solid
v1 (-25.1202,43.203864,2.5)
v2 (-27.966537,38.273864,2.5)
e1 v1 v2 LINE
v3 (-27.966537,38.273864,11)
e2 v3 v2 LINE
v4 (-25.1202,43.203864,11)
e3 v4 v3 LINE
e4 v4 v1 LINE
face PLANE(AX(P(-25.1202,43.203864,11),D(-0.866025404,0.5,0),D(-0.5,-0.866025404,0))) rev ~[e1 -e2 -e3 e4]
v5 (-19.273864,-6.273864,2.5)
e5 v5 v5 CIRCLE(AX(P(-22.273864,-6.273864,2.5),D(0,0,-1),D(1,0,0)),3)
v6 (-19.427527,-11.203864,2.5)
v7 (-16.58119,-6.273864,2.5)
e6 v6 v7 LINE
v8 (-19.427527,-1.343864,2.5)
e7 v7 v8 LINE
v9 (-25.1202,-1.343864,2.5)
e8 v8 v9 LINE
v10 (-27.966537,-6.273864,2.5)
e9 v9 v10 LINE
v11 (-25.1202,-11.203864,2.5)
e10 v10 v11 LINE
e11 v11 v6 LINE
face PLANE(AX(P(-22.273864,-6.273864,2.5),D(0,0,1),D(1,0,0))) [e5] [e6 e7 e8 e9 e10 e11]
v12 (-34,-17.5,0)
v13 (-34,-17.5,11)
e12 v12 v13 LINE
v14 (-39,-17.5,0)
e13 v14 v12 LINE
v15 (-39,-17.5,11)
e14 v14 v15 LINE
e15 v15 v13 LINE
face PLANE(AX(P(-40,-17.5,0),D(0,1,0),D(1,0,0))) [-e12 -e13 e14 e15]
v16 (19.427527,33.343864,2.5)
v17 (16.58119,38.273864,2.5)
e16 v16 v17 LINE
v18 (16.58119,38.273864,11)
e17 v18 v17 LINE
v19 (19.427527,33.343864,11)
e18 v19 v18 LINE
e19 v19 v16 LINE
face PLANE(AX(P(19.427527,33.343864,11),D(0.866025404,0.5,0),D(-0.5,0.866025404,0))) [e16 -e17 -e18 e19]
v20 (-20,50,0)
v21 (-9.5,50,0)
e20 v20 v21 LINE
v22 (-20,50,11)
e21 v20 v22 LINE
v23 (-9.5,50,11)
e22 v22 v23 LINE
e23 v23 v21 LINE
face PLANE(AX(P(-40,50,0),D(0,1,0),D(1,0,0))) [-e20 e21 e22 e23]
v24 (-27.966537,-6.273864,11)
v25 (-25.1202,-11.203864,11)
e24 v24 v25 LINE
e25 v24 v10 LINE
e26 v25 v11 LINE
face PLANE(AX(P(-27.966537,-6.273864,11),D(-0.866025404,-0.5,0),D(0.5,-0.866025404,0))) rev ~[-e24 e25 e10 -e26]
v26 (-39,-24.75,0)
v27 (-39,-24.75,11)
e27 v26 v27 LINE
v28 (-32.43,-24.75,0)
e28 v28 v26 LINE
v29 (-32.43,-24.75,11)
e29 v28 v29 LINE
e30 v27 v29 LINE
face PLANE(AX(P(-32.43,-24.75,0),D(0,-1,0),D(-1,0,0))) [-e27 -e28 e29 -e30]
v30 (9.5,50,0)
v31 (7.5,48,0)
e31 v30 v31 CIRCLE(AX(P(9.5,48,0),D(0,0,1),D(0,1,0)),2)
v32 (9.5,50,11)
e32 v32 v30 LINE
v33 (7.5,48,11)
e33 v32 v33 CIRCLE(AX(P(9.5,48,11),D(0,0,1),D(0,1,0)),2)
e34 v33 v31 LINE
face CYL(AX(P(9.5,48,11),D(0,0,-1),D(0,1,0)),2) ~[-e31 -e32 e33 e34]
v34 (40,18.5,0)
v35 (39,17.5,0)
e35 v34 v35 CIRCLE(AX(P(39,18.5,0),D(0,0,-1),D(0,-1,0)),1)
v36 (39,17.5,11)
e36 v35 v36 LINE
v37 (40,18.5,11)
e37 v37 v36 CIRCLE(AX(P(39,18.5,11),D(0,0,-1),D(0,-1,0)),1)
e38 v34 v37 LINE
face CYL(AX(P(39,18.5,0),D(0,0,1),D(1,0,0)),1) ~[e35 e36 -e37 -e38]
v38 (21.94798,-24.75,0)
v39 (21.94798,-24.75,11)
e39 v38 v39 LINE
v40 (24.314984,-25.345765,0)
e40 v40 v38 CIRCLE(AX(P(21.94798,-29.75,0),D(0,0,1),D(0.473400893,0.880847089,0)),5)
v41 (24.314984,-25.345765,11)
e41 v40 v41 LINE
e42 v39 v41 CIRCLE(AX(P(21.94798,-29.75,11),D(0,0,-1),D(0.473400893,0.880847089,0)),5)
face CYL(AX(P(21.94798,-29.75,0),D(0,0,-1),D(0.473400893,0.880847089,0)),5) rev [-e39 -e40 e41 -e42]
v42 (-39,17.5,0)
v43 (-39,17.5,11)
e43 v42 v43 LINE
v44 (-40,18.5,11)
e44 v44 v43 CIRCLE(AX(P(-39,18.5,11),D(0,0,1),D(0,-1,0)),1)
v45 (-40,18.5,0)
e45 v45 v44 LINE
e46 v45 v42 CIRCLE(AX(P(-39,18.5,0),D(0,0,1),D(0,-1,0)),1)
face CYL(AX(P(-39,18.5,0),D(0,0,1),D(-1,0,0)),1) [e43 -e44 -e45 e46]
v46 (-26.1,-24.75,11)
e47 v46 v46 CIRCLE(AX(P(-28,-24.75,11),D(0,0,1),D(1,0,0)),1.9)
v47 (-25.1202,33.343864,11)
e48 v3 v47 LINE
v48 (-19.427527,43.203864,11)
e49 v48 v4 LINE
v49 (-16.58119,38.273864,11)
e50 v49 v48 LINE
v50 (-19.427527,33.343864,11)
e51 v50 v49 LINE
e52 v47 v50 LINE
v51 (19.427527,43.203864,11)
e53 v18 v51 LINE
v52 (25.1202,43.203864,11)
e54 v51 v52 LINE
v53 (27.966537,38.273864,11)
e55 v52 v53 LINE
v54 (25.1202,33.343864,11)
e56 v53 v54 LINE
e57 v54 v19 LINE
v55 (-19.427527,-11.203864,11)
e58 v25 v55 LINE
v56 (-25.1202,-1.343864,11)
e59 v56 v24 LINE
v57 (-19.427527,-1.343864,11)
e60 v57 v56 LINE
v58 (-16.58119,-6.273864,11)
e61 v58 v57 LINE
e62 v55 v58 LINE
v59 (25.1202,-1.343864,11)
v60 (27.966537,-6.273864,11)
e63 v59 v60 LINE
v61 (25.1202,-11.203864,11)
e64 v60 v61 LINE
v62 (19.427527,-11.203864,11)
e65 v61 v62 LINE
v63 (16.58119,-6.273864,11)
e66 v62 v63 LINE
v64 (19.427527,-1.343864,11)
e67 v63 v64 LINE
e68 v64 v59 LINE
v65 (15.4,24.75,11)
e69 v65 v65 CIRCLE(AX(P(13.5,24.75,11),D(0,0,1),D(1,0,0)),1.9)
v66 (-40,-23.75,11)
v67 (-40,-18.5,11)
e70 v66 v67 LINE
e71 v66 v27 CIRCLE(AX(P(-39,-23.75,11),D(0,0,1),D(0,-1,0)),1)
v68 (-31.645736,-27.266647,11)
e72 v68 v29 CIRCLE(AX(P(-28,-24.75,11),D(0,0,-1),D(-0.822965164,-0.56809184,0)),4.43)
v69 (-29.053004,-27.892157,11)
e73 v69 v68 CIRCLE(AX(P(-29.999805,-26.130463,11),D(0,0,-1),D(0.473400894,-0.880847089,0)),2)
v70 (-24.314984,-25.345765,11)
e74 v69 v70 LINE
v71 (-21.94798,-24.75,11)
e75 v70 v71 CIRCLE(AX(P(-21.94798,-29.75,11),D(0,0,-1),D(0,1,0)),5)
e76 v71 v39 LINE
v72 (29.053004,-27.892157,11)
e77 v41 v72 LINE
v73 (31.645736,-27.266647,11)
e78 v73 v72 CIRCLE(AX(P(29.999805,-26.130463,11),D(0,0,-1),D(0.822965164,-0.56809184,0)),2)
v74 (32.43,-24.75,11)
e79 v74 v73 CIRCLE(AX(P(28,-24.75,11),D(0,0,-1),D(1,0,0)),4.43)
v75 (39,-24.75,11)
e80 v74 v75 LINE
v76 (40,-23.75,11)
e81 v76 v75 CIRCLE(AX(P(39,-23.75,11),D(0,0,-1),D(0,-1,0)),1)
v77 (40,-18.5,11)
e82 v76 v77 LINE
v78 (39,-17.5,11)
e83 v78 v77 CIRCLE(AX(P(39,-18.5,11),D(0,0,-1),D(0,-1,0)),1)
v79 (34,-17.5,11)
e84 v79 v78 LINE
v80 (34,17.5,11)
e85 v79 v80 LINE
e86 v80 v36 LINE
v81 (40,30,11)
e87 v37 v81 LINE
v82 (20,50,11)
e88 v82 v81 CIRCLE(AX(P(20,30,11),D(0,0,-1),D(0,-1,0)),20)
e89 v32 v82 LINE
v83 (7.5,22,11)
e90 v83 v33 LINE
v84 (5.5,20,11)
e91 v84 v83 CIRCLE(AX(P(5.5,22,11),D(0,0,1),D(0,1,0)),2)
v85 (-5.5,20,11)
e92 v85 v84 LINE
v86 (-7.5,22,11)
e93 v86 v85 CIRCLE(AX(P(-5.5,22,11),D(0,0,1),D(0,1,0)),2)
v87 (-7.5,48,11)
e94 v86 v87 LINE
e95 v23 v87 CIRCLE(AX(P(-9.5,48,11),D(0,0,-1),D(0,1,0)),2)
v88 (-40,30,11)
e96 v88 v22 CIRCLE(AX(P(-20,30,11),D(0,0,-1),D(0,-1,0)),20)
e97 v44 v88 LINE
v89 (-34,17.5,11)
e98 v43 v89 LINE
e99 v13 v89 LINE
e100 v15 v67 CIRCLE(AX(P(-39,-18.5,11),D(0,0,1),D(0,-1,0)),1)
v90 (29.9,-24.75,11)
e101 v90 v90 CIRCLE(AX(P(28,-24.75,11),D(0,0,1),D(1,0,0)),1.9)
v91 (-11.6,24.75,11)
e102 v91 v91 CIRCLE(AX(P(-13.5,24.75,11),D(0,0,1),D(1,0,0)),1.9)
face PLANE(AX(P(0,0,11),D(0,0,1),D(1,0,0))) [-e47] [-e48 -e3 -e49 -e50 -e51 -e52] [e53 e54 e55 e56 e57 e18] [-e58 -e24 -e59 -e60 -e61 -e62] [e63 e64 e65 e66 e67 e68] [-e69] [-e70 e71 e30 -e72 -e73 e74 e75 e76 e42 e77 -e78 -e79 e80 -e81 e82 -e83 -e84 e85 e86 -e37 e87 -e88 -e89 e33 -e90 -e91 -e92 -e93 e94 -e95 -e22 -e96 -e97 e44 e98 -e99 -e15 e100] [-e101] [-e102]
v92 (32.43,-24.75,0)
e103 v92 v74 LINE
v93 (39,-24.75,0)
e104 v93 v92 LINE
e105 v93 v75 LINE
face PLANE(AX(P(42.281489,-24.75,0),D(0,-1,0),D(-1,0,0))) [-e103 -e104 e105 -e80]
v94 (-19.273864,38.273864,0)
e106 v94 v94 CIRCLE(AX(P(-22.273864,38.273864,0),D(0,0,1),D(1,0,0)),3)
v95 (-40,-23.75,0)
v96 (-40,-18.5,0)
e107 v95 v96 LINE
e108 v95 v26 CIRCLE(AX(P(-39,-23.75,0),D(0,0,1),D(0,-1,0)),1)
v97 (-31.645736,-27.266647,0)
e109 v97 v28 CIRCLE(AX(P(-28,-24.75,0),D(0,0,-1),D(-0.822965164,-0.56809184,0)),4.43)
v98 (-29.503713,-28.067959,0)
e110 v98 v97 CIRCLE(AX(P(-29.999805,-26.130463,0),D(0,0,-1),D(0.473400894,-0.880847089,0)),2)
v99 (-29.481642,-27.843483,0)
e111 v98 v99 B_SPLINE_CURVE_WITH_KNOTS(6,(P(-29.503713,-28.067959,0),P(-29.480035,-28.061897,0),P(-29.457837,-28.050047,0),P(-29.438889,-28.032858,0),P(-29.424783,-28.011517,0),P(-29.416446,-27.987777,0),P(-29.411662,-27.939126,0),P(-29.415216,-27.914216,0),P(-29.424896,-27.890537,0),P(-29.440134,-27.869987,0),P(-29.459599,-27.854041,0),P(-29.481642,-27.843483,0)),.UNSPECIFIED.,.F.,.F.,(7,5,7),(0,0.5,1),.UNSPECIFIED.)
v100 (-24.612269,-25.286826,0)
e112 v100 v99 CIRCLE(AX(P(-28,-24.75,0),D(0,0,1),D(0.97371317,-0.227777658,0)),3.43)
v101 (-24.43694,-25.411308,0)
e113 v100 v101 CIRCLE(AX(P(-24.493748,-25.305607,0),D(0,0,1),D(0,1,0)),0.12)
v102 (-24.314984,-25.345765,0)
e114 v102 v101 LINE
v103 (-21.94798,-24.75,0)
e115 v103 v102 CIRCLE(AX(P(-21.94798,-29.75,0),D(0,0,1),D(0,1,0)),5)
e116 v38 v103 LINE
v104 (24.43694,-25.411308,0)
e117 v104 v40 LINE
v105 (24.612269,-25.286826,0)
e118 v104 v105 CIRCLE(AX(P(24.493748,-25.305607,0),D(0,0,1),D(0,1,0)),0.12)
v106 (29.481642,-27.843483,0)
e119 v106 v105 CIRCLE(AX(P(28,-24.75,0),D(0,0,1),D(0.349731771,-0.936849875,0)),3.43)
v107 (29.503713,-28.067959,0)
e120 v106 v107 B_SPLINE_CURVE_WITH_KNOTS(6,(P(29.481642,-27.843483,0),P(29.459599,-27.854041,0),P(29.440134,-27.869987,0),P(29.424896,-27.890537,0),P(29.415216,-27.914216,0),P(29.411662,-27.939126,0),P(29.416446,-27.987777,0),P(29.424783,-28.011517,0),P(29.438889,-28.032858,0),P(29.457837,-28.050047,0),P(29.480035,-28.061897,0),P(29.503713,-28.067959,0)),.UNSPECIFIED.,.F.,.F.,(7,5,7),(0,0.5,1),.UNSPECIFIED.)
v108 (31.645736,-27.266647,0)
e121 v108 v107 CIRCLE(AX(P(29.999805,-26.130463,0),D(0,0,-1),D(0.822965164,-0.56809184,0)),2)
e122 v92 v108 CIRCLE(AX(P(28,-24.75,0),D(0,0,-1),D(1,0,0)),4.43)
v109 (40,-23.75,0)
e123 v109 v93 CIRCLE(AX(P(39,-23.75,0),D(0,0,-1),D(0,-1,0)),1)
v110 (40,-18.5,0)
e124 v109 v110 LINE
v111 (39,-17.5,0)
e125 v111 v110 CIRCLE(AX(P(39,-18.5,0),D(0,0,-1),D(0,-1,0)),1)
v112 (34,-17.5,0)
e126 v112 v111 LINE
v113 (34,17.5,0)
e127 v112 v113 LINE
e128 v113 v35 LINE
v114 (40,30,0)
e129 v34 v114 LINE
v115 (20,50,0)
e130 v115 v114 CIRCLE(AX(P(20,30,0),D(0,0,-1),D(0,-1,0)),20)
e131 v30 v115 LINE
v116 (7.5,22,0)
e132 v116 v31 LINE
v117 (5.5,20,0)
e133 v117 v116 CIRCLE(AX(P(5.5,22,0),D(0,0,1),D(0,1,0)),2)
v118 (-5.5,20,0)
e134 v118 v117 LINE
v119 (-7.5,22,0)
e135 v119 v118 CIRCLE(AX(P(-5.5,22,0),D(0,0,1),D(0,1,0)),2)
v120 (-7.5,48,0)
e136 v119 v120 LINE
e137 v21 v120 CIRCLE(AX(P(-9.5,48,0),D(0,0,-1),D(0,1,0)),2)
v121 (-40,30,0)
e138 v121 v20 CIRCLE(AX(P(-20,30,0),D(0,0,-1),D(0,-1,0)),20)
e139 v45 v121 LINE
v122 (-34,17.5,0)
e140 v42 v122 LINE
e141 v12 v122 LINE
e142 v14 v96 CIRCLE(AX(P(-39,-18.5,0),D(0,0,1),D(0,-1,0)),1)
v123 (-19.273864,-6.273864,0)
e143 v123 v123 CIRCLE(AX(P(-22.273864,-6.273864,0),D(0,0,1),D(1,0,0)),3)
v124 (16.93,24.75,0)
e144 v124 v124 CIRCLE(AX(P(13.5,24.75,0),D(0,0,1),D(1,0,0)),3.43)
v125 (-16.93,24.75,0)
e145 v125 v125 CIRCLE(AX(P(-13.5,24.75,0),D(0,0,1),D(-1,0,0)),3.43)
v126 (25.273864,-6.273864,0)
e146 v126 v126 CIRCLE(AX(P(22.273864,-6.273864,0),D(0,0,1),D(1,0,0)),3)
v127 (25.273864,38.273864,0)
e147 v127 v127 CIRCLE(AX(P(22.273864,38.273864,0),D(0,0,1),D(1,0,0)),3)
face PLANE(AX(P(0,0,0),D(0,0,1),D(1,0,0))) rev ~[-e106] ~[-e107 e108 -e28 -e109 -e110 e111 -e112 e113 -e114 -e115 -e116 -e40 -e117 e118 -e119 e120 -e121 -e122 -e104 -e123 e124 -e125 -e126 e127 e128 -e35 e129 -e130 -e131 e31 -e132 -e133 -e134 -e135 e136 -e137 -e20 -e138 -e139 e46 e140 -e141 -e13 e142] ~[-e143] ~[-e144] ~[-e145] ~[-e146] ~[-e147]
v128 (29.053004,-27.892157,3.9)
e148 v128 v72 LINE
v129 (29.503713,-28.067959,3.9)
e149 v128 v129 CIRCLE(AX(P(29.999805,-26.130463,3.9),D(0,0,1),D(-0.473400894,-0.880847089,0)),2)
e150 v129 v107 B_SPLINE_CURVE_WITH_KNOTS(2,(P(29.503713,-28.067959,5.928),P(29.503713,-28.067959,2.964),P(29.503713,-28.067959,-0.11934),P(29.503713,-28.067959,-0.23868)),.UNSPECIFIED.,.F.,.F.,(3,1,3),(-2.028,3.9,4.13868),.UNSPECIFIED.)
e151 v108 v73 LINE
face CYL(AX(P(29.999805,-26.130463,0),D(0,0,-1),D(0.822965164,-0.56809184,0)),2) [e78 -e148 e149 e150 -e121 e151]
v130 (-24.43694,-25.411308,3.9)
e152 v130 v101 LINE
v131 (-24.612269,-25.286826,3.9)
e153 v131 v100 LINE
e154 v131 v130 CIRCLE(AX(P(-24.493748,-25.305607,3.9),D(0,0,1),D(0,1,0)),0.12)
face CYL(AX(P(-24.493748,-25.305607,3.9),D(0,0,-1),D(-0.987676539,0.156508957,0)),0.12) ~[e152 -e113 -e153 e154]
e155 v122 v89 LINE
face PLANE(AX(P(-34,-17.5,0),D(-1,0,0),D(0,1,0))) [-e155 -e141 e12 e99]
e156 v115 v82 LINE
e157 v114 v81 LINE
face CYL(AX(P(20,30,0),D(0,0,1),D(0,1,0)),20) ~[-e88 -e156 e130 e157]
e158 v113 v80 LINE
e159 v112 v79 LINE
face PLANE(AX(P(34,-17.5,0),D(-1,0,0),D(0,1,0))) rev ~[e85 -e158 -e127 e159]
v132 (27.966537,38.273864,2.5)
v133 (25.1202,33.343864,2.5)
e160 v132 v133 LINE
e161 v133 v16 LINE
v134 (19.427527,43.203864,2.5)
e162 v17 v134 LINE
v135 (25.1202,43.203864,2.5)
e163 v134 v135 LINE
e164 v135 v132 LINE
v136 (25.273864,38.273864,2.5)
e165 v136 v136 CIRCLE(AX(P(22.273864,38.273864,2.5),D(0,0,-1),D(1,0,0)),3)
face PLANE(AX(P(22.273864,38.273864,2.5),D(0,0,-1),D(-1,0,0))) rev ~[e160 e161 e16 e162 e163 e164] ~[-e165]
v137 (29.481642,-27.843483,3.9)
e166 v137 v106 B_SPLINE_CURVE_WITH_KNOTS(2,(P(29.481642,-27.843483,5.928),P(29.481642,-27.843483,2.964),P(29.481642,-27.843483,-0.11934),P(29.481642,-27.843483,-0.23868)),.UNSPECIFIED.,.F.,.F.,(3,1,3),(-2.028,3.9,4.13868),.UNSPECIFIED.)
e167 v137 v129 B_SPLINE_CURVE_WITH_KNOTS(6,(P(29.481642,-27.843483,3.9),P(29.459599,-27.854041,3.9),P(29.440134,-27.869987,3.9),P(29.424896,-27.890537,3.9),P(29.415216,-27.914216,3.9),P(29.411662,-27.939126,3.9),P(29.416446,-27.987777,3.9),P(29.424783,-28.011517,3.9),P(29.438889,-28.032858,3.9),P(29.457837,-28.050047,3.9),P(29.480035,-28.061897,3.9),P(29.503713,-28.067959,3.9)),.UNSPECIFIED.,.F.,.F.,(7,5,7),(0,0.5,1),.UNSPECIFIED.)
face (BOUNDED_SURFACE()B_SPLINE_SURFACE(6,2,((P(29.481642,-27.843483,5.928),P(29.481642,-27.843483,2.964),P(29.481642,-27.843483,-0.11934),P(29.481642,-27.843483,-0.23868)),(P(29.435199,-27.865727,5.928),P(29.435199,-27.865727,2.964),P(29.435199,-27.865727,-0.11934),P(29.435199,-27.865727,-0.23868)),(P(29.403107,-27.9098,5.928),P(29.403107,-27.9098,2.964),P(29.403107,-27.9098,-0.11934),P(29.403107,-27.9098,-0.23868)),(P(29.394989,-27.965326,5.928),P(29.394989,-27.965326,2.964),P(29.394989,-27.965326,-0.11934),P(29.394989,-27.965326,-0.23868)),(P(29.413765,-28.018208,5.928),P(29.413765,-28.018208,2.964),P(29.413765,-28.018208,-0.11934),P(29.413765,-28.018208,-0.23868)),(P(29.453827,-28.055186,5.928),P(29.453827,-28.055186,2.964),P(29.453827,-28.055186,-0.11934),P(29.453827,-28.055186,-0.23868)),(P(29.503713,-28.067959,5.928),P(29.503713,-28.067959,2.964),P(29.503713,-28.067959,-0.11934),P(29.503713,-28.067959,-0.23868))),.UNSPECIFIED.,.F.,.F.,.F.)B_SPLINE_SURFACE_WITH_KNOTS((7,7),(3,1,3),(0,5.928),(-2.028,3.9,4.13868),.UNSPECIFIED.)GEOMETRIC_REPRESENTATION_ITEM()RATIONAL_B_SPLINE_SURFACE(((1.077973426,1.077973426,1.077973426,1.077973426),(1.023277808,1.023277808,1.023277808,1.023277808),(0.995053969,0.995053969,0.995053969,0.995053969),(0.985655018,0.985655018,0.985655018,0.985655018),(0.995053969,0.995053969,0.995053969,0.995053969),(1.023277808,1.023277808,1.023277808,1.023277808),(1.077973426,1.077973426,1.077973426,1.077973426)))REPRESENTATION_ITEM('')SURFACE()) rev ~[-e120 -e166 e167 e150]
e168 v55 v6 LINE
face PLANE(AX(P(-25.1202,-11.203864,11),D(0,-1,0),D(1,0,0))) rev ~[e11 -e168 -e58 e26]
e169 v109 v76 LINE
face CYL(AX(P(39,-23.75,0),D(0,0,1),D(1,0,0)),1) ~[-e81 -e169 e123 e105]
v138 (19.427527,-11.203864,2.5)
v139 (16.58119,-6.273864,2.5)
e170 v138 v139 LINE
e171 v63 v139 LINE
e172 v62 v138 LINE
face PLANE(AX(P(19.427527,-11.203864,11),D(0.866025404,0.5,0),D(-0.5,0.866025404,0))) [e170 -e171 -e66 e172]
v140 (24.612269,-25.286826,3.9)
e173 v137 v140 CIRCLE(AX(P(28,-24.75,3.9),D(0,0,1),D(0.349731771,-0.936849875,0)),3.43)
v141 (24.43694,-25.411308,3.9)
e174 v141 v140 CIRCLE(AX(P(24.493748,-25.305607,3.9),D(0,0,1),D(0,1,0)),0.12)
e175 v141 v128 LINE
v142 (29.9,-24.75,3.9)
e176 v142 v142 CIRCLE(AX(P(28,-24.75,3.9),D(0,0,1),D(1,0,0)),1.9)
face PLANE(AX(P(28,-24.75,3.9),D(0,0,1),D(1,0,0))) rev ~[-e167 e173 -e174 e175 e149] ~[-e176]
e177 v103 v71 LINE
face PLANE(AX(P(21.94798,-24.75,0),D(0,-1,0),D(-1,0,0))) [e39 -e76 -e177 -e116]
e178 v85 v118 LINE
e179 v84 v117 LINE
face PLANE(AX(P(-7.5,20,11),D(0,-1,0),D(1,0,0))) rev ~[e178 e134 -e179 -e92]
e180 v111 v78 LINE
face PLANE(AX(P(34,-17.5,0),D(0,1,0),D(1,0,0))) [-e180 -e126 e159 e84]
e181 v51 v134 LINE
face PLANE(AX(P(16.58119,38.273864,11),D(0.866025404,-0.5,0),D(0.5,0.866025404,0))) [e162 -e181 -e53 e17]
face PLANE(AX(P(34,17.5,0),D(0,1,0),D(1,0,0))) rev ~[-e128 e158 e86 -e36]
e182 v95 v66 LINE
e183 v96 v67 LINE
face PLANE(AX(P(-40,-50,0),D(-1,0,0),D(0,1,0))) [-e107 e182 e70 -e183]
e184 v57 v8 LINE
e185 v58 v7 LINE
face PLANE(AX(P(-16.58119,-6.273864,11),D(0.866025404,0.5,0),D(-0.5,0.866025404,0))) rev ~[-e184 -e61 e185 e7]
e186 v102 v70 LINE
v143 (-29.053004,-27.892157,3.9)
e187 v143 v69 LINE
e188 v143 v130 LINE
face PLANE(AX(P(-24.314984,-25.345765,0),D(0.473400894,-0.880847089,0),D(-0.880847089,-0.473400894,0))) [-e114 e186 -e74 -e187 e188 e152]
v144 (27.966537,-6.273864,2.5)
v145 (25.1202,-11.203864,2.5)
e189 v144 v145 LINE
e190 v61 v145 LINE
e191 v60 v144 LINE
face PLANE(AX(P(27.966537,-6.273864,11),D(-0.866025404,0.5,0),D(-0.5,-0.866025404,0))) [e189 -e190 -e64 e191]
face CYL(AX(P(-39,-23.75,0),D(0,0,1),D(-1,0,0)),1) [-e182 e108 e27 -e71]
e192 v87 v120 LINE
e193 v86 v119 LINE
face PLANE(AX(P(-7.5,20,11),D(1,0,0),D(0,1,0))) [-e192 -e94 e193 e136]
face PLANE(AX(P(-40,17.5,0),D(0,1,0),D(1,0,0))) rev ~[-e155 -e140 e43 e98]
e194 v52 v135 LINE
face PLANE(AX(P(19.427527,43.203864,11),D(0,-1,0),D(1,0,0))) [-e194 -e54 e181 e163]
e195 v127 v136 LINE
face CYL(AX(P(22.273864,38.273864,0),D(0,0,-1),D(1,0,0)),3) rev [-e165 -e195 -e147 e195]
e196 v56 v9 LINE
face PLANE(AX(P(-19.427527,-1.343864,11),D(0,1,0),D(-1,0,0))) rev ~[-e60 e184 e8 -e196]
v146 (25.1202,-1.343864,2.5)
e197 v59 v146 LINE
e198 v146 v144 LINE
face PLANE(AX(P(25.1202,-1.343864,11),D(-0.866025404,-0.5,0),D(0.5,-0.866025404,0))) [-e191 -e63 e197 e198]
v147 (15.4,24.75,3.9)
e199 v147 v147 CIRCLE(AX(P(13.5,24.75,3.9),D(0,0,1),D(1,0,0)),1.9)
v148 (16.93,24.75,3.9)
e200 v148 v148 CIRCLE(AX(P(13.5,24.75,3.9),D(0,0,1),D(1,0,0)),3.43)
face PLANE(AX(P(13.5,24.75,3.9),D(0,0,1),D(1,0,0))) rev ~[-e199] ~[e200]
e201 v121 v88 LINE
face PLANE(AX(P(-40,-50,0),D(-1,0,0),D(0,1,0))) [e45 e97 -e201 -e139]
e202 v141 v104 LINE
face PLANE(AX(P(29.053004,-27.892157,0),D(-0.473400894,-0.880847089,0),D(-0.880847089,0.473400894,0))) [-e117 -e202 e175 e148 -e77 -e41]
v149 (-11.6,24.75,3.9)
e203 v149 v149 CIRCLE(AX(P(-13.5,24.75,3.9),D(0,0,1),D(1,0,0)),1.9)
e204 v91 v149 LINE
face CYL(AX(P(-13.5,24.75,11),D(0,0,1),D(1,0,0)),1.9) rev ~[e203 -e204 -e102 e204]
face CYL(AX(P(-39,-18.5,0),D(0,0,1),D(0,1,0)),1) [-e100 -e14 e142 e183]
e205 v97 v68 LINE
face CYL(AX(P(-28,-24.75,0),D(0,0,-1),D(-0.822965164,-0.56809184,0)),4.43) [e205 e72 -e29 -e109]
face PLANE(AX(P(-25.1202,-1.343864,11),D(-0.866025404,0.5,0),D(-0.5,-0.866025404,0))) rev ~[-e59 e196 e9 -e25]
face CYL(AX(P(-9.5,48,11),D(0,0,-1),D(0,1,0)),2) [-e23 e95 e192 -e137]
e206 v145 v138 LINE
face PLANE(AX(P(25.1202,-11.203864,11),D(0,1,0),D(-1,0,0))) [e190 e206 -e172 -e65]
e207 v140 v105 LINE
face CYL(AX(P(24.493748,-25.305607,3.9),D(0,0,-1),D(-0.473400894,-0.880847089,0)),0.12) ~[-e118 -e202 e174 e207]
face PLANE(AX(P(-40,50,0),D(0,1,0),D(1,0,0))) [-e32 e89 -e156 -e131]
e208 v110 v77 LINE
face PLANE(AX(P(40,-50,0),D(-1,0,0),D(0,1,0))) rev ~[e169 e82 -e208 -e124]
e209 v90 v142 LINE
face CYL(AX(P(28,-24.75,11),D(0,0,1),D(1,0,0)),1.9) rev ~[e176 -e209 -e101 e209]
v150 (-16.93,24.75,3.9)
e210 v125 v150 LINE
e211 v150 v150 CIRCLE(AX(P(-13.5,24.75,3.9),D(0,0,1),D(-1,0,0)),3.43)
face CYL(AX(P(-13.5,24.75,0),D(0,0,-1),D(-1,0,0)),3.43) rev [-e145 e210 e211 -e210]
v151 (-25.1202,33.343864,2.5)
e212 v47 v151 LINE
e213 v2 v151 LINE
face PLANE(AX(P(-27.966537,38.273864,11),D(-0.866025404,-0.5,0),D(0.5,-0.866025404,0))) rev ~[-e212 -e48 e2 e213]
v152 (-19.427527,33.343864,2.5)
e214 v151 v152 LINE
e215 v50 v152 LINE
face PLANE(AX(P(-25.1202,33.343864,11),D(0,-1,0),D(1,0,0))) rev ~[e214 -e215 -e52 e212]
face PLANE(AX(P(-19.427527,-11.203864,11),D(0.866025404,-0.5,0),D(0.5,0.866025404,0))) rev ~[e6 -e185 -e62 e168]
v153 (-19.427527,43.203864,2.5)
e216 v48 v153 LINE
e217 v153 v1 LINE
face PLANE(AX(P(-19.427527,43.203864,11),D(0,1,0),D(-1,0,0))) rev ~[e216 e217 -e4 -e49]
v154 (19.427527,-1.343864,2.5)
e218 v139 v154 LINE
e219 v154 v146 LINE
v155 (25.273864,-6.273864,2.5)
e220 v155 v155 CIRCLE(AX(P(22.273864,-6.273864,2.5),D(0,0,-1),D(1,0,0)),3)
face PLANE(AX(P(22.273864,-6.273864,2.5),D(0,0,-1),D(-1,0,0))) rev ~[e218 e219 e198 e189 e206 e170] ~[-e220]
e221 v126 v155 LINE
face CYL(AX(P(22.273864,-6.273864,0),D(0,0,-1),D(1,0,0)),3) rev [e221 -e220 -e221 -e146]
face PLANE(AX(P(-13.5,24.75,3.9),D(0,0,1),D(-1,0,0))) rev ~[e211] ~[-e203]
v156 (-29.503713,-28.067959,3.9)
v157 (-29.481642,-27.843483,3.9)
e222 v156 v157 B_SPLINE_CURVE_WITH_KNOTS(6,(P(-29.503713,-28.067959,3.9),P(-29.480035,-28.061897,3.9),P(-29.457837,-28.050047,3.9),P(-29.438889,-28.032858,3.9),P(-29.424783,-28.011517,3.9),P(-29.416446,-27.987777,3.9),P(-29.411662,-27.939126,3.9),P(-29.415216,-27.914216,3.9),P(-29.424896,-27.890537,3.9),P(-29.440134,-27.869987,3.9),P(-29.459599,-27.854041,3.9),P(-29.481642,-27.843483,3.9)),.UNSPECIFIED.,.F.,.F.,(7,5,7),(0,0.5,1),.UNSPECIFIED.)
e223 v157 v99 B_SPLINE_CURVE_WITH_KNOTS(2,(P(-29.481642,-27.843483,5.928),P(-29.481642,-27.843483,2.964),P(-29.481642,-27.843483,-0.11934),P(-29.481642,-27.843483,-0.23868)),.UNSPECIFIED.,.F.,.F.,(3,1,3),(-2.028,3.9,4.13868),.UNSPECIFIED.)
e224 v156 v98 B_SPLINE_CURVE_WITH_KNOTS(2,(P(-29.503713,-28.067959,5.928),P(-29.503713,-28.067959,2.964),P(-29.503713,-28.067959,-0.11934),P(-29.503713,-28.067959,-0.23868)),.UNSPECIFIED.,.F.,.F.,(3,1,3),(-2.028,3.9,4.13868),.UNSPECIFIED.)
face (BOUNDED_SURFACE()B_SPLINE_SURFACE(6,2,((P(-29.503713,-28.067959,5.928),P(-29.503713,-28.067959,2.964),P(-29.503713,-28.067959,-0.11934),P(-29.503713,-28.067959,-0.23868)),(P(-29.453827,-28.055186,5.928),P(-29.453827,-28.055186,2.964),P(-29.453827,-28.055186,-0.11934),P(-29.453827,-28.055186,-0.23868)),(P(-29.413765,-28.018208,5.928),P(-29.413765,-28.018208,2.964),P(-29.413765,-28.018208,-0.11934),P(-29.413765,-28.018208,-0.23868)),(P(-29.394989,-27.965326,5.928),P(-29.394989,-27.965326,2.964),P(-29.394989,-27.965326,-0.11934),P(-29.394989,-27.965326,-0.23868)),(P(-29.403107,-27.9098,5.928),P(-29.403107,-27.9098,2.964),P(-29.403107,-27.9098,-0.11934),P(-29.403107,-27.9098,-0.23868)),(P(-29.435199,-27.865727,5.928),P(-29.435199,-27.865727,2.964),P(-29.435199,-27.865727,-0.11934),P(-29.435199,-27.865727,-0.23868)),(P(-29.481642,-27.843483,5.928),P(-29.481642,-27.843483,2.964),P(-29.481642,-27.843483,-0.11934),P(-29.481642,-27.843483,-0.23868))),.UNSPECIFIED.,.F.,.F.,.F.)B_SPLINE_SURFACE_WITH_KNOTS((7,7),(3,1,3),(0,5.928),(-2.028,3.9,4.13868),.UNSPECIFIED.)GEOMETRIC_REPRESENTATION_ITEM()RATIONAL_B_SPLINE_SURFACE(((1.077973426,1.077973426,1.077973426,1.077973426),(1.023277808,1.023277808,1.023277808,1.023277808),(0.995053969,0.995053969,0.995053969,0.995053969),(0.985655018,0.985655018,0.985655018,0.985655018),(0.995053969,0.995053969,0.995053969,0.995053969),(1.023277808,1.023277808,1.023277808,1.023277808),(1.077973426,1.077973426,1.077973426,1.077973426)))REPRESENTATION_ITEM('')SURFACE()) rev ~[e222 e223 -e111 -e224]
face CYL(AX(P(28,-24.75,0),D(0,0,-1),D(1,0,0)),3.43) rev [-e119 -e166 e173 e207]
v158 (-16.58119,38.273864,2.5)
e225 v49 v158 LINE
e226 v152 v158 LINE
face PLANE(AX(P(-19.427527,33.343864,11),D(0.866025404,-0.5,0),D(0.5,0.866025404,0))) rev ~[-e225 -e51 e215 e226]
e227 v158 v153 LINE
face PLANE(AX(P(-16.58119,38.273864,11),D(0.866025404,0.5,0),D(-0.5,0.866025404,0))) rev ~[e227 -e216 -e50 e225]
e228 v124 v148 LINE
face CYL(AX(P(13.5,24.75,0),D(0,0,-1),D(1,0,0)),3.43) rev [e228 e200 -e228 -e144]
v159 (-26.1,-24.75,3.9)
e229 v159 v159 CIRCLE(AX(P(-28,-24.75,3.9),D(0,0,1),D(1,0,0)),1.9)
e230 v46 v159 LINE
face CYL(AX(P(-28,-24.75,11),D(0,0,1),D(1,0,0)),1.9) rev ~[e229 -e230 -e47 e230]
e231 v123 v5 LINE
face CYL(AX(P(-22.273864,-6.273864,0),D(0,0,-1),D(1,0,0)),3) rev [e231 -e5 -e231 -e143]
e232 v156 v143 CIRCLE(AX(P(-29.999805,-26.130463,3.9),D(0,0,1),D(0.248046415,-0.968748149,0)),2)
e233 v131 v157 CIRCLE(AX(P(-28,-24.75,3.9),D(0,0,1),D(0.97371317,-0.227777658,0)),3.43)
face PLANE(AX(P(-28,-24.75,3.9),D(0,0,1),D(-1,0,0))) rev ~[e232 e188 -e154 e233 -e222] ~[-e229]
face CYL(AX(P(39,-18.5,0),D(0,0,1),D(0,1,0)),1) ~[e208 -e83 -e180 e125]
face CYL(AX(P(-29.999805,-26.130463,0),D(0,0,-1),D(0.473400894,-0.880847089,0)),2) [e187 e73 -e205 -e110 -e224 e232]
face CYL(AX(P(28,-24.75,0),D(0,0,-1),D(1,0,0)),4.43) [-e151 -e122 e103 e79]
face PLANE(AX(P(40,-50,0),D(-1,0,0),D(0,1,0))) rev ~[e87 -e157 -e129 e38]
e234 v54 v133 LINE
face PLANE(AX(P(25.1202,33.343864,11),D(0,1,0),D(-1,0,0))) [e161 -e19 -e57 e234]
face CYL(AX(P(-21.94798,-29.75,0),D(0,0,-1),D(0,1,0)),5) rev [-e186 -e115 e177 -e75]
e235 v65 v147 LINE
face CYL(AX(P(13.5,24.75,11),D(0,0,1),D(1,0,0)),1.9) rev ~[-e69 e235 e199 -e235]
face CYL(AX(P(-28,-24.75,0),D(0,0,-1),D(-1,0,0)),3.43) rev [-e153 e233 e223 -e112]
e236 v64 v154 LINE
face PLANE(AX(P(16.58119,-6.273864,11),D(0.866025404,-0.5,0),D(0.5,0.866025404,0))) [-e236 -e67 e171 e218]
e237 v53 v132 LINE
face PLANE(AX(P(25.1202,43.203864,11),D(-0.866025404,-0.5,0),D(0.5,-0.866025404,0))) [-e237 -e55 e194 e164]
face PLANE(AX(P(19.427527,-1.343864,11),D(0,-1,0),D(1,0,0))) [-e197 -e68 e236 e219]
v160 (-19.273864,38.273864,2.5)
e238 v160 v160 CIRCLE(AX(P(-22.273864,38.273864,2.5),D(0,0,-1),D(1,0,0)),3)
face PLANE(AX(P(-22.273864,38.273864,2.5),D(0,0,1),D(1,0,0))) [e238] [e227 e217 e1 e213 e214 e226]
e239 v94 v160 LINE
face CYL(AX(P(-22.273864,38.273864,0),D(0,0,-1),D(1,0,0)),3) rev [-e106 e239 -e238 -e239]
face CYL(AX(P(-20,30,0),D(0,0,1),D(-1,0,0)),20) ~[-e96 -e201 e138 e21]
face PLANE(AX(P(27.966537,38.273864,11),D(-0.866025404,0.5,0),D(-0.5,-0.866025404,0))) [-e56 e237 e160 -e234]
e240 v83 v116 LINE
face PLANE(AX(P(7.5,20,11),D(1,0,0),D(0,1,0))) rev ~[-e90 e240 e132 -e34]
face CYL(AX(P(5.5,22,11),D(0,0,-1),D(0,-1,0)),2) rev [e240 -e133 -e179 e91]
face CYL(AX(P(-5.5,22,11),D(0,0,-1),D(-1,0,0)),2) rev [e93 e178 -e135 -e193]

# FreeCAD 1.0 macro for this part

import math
import FreeCAD as App
import Part
import Sketcher

V = App.Vector
Q = App.Units.Quantity


def edges_at(feature, points):
    """Names of the edges that pass closest to the given points."""
    edges = feature.Shape.Edges
    near = lambda p: min(range(len(edges)), key=lambda i: edges[i].distToShape(Part.Vertex(*p))[0])
    return sorted({f"Edge{near(p) + 1}" for p in points})

doc = App.newDocument("Part")
body = doc.addObject("PartDesign::Body", "Body")

sketch1 = doc.addObject("Sketcher::SketchObject", "Sketch")
body.addObject(sketch1)
sketch1.AttachmentSupport = (doc.XY_Plane, [""])
sketch1.MapMode = "FlatFace"
sketch1.addGeometry(Part.LineSegment(V(-40, 50, 0), V(-40, -50, 0)), False)
sketch1.addGeometry(Part.LineSegment(V(-40, -50, 0), V(40, -50, 0)), False)
sketch1.addGeometry(Part.LineSegment(V(40, -50, 0), V(40, 50, 0)), False)
sketch1.addGeometry(Part.LineSegment(V(40, 50, 0), V(-40, 50, 0)), False)
sketch1.addConstraint(Sketcher.Constraint("Coincident", 0, 2, 1, 1))
sketch1.addConstraint(Sketcher.Constraint("Coincident", 1, 2, 2, 1))
sketch1.addConstraint(Sketcher.Constraint("Coincident", 2, 2, 3, 1))
sketch1.addConstraint(Sketcher.Constraint("Coincident", 3, 2, 0, 1))
sketch1.addConstraint(Sketcher.Constraint("Vertical", 0))
sketch1.addConstraint(Sketcher.Constraint("Horizontal", 1))
sketch1.addConstraint(Sketcher.Constraint("Vertical", 2))
sketch1.addConstraint(Sketcher.Constraint("Horizontal", 3))
sketch1.addConstraint(Sketcher.Constraint("Symmetric", 0, 2, 2, 2, -1, 1))
sketch1.addConstraint(Sketcher.Constraint("DistanceX", 1, 1, 1, 2, Q("80 mm")))
sketch1.addConstraint(Sketcher.Constraint("DistanceY", 0, 2, 0, 1, Q("100 mm")))
pad1 = doc.addObject("PartDesign::Pad", "Pad")
body.addObject(pad1)
pad1.Profile = sketch1
pad1.Length = 11

sketch2 = doc.addObject("Sketcher::SketchObject", "Sketch001")
body.addObject(sketch2)
sketch2.AttachmentSupport = (doc.XY_Plane, [""])
sketch2.MapMode = "FlatFace"
sketch2.AttachmentOffset = App.Placement(V(0, 0, 11), App.Rotation())
sketch2.addGeometry(Part.LineSegment(V(-7.5, 50, 0), V(-7.5, 20, 0)), False)
sketch2.addGeometry(Part.LineSegment(V(-7.5, 20, 0), V(7.5, 20, 0)), False)
sketch2.addGeometry(Part.LineSegment(V(7.5, 20, 0), V(7.5, 50, 0)), False)
sketch2.addGeometry(Part.LineSegment(V(7.5, 50, 0), V(-7.5, 50, 0)), False)
sketch2.addConstraint(Sketcher.Constraint("Coincident", 0, 2, 1, 1))
sketch2.addConstraint(Sketcher.Constraint("Coincident", 1, 2, 2, 1))
sketch2.addConstraint(Sketcher.Constraint("Coincident", 2, 2, 3, 1))
sketch2.addConstraint(Sketcher.Constraint("Coincident", 3, 2, 0, 1))
sketch2.addConstraint(Sketcher.Constraint("Vertical", 0))
sketch2.addConstraint(Sketcher.Constraint("Horizontal", 1))
sketch2.addConstraint(Sketcher.Constraint("Vertical", 2))
sketch2.addConstraint(Sketcher.Constraint("Horizontal", 3))
sketch2.addConstraint(Sketcher.Constraint("DistanceX", 1, 1, 1, 2, Q("15 mm")))
sketch2.addConstraint(Sketcher.Constraint("DistanceY", 0, 2, 0, 1, Q("30 mm")))
sketch2.addConstraint(Sketcher.Constraint("DistanceY", -1, 1, 0, 2, Q("20 mm")))
sketch2.addConstraint(Sketcher.Constraint("DistanceX", 0, 2, -1, 1, Q("7.5 mm")))
pocket1 = doc.addObject("PartDesign::Pocket", "Pocket")
body.addObject(pocket1)
pocket1.Profile = sketch2
pocket1.Length = 16

sketch3 = doc.addObject("Sketcher::SketchObject", "Sketch002")
body.addObject(sketch3)
sketch3.AttachmentSupport = (doc.XY_Plane, [""])
sketch3.MapMode = "FlatFace"
sketch3.addGeometry(Part.Circle(V(13.5, 24.75, 0), V(0, 0, 1), 1.65), False)
sketch3.addGeometry(Part.Circle(V(-13.5, 24.75, 0), V(0, 0, 1), 1.65), False)
sketch3.addGeometry(Part.Circle(V(-28, -24.75, 0), V(0, 0, 1), 1.65), False)
sketch3.addGeometry(Part.Circle(V(28, -24.75, 0), V(0, 0, 1), 1.65), False)
sketch3.addConstraint(Sketcher.Constraint("Equal", 0, 1))
sketch3.addConstraint(Sketcher.Constraint("Equal", 1, 2))
sketch3.addConstraint(Sketcher.Constraint("Equal", 2, 3))
sketch3.addConstraint(Sketcher.Constraint("Symmetric", 0, 3, 1, 3, -2))
sketch3.addConstraint(Sketcher.Constraint("Symmetric", 2, 3, 3, 3, -2))
sketch3.addConstraint(Sketcher.Constraint("Diameter", 0, Q("3.3 mm")))
sketch3.addConstraint(Sketcher.Constraint("DistanceX", 2, 3, -1, 1, Q("28 mm")))
sketch3.addConstraint(Sketcher.Constraint("DistanceX", 1, 3, 0, 3, Q("27 mm")))
sketch3.addConstraint(Sketcher.Constraint("DistanceY", 2, 3, 1, 3, Q("49.5 mm")))
sketch3.addConstraint(Sketcher.Constraint("DistanceY", -1, 1, 0, 3, Q("24.75 mm")))
doc.recompute()
hole = doc.addObject("PartDesign::Hole", "Hole")
body.addObject(hole)
hole.Profile = sketch3
hole.ThreadType = "None"
hole.Diameter = 3.3
hole.DepthType = "ThroughAll"
hole.HoleCutType = "Countersink"
hole.HoleCutDiameter = 4.05
hole.HoleCutCountersinkAngle = 90
hole.Reversed = True
doc.recompute()

fillet = doc.addObject("PartDesign::Fillet", "Fillet")
body.addObject(fillet)
fillet.Base = (hole, edges_at(hole, [(-40, 50, 5.5), (40, 50, 5.5)]))
fillet.Radius = 20
doc.recompute()

fillet2 = doc.addObject("PartDesign::Fillet", "Fillet001")
body.addObject(fillet2)
fillet2.Base = (fillet, edges_at(fillet, [
    (-7.5, 20, 5.5),
    (-7.5, 50, 5.5),
    (7.5, 50, 5.5),
    (7.5, 20, 5.5),
    (40, -50, 5.5),
    (-40, -50, 5.5),
]))
fillet2.Radius = 2

sketch4 = doc.addObject("Sketcher::SketchObject", "Sketch003")
body.addObject(sketch4)
sketch4.AttachmentSupport = (doc.XY_Plane, [""])
sketch4.MapMode = "FlatFace"
sketch4.addGeometry(Part.LineSegment(V(34, 17.5, 0), V(34, -17.5, 0)), False)
sketch4.addGeometry(Part.LineSegment(V(34, -17.5, 0), V(40, -17.5, 0)), False)
sketch4.addGeometry(Part.LineSegment(V(40, -17.5, 0), V(40, 17.5, 0)), False)
sketch4.addGeometry(Part.LineSegment(V(40, 17.5, 0), V(34, 17.5, 0)), False)
sketch4.addGeometry(Part.LineSegment(V(-40, 17.5, 0), V(-40, -17.5, 0)), False)
sketch4.addGeometry(Part.LineSegment(V(-40, -17.5, 0), V(-34, -17.5, 0)), False)
sketch4.addGeometry(Part.LineSegment(V(-34, -17.5, 0), V(-34, 17.5, 0)), False)
sketch4.addGeometry(Part.LineSegment(V(-34, 17.5, 0), V(-40, 17.5, 0)), False)
sketch4.addConstraint(Sketcher.Constraint("Coincident", 0, 2, 1, 1))
sketch4.addConstraint(Sketcher.Constraint("Coincident", 1, 2, 2, 1))
sketch4.addConstraint(Sketcher.Constraint("Coincident", 2, 2, 3, 1))
sketch4.addConstraint(Sketcher.Constraint("Coincident", 3, 2, 0, 1))
sketch4.addConstraint(Sketcher.Constraint("Coincident", 4, 2, 5, 1))
sketch4.addConstraint(Sketcher.Constraint("Coincident", 5, 2, 6, 1))
sketch4.addConstraint(Sketcher.Constraint("Coincident", 6, 2, 7, 1))
sketch4.addConstraint(Sketcher.Constraint("Coincident", 7, 2, 4, 1))
sketch4.addConstraint(Sketcher.Constraint("Vertical", 0))
sketch4.addConstraint(Sketcher.Constraint("Horizontal", 1))
sketch4.addConstraint(Sketcher.Constraint("Vertical", 2))
sketch4.addConstraint(Sketcher.Constraint("Horizontal", 3))
sketch4.addConstraint(Sketcher.Constraint("Vertical", 4))
sketch4.addConstraint(Sketcher.Constraint("Horizontal", 5))
sketch4.addConstraint(Sketcher.Constraint("Vertical", 6))
sketch4.addConstraint(Sketcher.Constraint("Horizontal", 7))
sketch4.addConstraint(Sketcher.Constraint("Symmetric", 2, 2, 4, 2, -1, 1))
sketch4.addConstraint(Sketcher.Constraint("Symmetric", 0, 2, 6, 2, -1, 1))
sketch4.addConstraint(Sketcher.Constraint("Horizontal", 1, 2, 4, 2))
sketch4.addConstraint(Sketcher.Constraint("DistanceX", 1, 1, 1, 2, Q("6 mm")))
sketch4.addConstraint(Sketcher.Constraint("DistanceY", 0, 2, 0, 1, Q("35 mm")))
sketch4.addConstraint(Sketcher.Constraint("DistanceX", -1, 1, 0, 2, Q("34 mm")))
pocket2 = doc.addObject("PartDesign::Pocket", "Pocket001")
body.addObject(pocket2)
pocket2.Profile = sketch4
pocket2.Length = 11
pocket2.Reversed = True

sketch5 = doc.addObject("Sketcher::SketchObject", "Sketch004")
body.addObject(sketch5)
sketch5.AttachmentSupport = (doc.XY_Plane, [""])
sketch5.MapMode = "FlatFace"
sketch5.addGeometry(Part.Circle(V(-22.273864, 38.273864, 0), V(0, 0, 1), 3), False)
sketch5.addGeometry(Part.Circle(V(22.273864, 38.273864, 0), V(0, 0, 1), 3), False)
sketch5.addGeometry(Part.Circle(V(22.273864, -6.273864, 0), V(0, 0, 1), 3), False)
sketch5.addGeometry(Part.Circle(V(-22.273864, -6.273864, 0), V(0, 0, 1), 3), False)
sketch5.addConstraint(Sketcher.Constraint("Equal", 0, 1))
sketch5.addConstraint(Sketcher.Constraint("Equal", 1, 2))
sketch5.addConstraint(Sketcher.Constraint("Equal", 2, 3))
sketch5.addConstraint(Sketcher.Constraint("Symmetric", 0, 3, 1, 3, -2))
sketch5.addConstraint(Sketcher.Constraint("Symmetric", 2, 3, 3, 3, -2))
sketch5.addConstraint(Sketcher.Constraint("Vertical", 1, 3, 2, 3))
sketch5.addConstraint(Sketcher.Constraint("Diameter", 0, Q("6 mm")))
sketch5.addConstraint(Sketcher.Constraint("DistanceX", 0, 3, -1, 1, Q("22.273864 mm")))
sketch5.addConstraint(Sketcher.Constraint("DistanceY", -1, 1, 0, 3, Q("38.273864 mm")))
sketch5.addConstraint(Sketcher.Constraint("DistanceY", 2, 3, -1, 1, Q("6.273864 mm")))
pocket3 = doc.addObject("PartDesign::Pocket", "Pocket002")
body.addObject(pocket3)
pocket3.Profile = sketch5
pocket3.Length = 15
pocket3.Reversed = True

sketch6 = doc.addObject("Sketcher::SketchObject", "Sketch005")
body.addObject(sketch6)
sketch6.AttachmentSupport = (doc.XY_Plane, [""])
sketch6.MapMode = "FlatFace"
sketch6.addGeometry(Part.Circle(V(13.5, 24.75, 0), V(0, 0, 1), 3.43), False)
sketch6.addGeometry(Part.Circle(V(28, -24.75, 0), V(0, 0, 1), 3.43), False)
sketch6.addGeometry(Part.Circle(V(-28, -24.75, 0), V(0, 0, 1), 3.43), False)
sketch6.addGeometry(Part.Circle(V(-13.5, 24.75, 0), V(0, 0, 1), 3.43), False)
sketch6.addConstraint(Sketcher.Constraint("Equal", 0, 1))
sketch6.addConstraint(Sketcher.Constraint("Equal", 1, 2))
sketch6.addConstraint(Sketcher.Constraint("Equal", 2, 3))
sketch6.addConstraint(Sketcher.Constraint("Symmetric", 1, 3, 2, 3, -2))
sketch6.addConstraint(Sketcher.Constraint("Symmetric", 0, 3, 3, 3, -2))
sketch6.addConstraint(Sketcher.Constraint("Diameter", 0, Q("6.86 mm")))
sketch6.addConstraint(Sketcher.Constraint("DistanceX", -1, 1, 1, 3, Q("28 mm")))
sketch6.addConstraint(Sketcher.Constraint("DistanceX", 3, 3, 0, 3, Q("27 mm")))
sketch6.addConstraint(Sketcher.Constraint("DistanceY", 1, 3, 0, 3, Q("49.5 mm")))
sketch6.addConstraint(Sketcher.Constraint("DistanceY", -1, 1, 0, 3, Q("24.75 mm")))
pocket4 = doc.addObject("PartDesign::Pocket", "Pocket003")
body.addObject(pocket4)
pocket4.Profile = sketch6
pocket4.Length = 3.9
pocket4.Reversed = True

sketch7 = doc.addObject("Sketcher::SketchObject", "Sketch006")
body.addObject(sketch7)
sketch7.AttachmentSupport = (doc.XY_Plane, [""])
sketch7.MapMode = "FlatFace"
sketch7.AttachmentOffset = App.Placement(V(0, 0, 11), App.Rotation())
sketch7.addGeometry(Part.LineSegment(V(-19.427527, 33.343864, 0), V(-16.58119, 38.273864, 0)), False)
sketch7.addGeometry(Part.LineSegment(V(-16.58119, 38.273864, 0), V(-19.427527, 43.203864, 0)), False)
sketch7.addGeometry(Part.LineSegment(V(-19.427527, 43.203864, 0), V(-25.1202, 43.203864, 0)), False)
sketch7.addGeometry(Part.LineSegment(V(-25.1202, 43.203864, 0), V(-27.966537, 38.273864, 0)), False)
sketch7.addGeometry(Part.LineSegment(V(-27.966537, 38.273864, 0), V(-25.1202, 33.343864, 0)), False)
sketch7.addGeometry(Part.LineSegment(V(-25.1202, 33.343864, 0), V(-19.427527, 33.343864, 0)), False)
sketch7.addGeometry(Part.LineSegment(V(-19.427527, -11.203864, 0), V(-16.58119, -6.273864, 0)), False)
sketch7.addGeometry(Part.LineSegment(V(-16.58119, -6.273864, 0), V(-19.427527, -1.343864, 0)), False)
sketch7.addGeometry(Part.LineSegment(V(-19.427527, -1.343864, 0), V(-25.1202, -1.343864, 0)), False)
sketch7.addGeometry(Part.LineSegment(V(-25.1202, -1.343864, 0), V(-27.966537, -6.273864, 0)), False)
sketch7.addGeometry(Part.LineSegment(V(-27.966537, -6.273864, 0), V(-25.1202, -11.203864, 0)), False)
sketch7.addGeometry(Part.LineSegment(V(-25.1202, -11.203864, 0), V(-19.427527, -11.203864, 0)), False)
sketch7.addGeometry(Part.LineSegment(V(19.427527, -11.203864, 0), V(25.1202, -11.203864, 0)), False)
sketch7.addGeometry(Part.LineSegment(V(25.1202, -11.203864, 0), V(27.966537, -6.273864, 0)), False)
sketch7.addGeometry(Part.LineSegment(V(27.966537, -6.273864, 0), V(25.1202, -1.343864, 0)), False)
sketch7.addGeometry(Part.LineSegment(V(25.1202, -1.343864, 0), V(19.427527, -1.343864, 0)), False)
sketch7.addGeometry(Part.LineSegment(V(19.427527, -1.343864, 0), V(16.58119, -6.273864, 0)), False)
sketch7.addGeometry(Part.LineSegment(V(16.58119, -6.273864, 0), V(19.427527, -11.203864, 0)), False)
sketch7.addGeometry(Part.LineSegment(V(19.427527, 33.343864, 0), V(25.1202, 33.343864, 0)), False)
sketch7.addGeometry(Part.LineSegment(V(25.1202, 33.343864, 0), V(27.966537, 38.273864, 0)), False)
sketch7.addGeometry(Part.LineSegment(V(27.966537, 38.273864, 0), V(25.1202, 43.203864, 0)), False)
sketch7.addGeometry(Part.LineSegment(V(25.1202, 43.203864, 0), V(19.427527, 43.203864, 0)), False)
sketch7.addGeometry(Part.LineSegment(V(19.427527, 43.203864, 0), V(16.58119, 38.273864, 0)), False)
sketch7.addGeometry(Part.LineSegment(V(16.58119, 38.273864, 0), V(19.427527, 33.343864, 0)), False)
sketch7.addConstraint(Sketcher.Constraint("Coincident", 0, 2, 1, 1))
sketch7.addConstraint(Sketcher.Constraint("Coincident", 1, 2, 2, 1))
sketch7.addConstraint(Sketcher.Constraint("Coincident", 2, 2, 3, 1))
sketch7.addConstraint(Sketcher.Constraint("Coincident", 3, 2, 4, 1))
sketch7.addConstraint(Sketcher.Constraint("Coincident", 4, 2, 5, 1))
sketch7.addConstraint(Sketcher.Constraint("Coincident", 5, 2, 0, 1))
sketch7.addConstraint(Sketcher.Constraint("Coincident", 6, 2, 7, 1))
sketch7.addConstraint(Sketcher.Constraint("Coincident", 7, 2, 8, 1))
sketch7.addConstraint(Sketcher.Constraint("Coincident", 8, 2, 9, 1))
sketch7.addConstraint(Sketcher.Constraint("Coincident", 9, 2, 10, 1))
sketch7.addConstraint(Sketcher.Constraint("Coincident", 10, 2, 11, 1))
sketch7.addConstraint(Sketcher.Constraint("Coincident", 11, 2, 6, 1))
sketch7.addConstraint(Sketcher.Constraint("Coincident", 12, 2, 13, 1))
sketch7.addConstraint(Sketcher.Constraint("Coincident", 13, 2, 14, 1))
sketch7.addConstraint(Sketcher.Constraint("Coincident", 14, 2, 15, 1))
sketch7.addConstraint(Sketcher.Constraint("Coincident", 15, 2, 16, 1))
sketch7.addConstraint(Sketcher.Constraint("Coincident", 16, 2, 17, 1))
sketch7.addConstraint(Sketcher.Constraint("Coincident", 17, 2, 12, 1))
sketch7.addConstraint(Sketcher.Constraint("Coincident", 18, 2, 19, 1))
sketch7.addConstraint(Sketcher.Constraint("Coincident", 19, 2, 20, 1))
sketch7.addConstraint(Sketcher.Constraint("Coincident", 20, 2, 21, 1))
sketch7.addConstraint(Sketcher.Constraint("Coincident", 21, 2, 22, 1))
sketch7.addConstraint(Sketcher.Constraint("Coincident", 22, 2, 23, 1))
sketch7.addConstraint(Sketcher.Constraint("Coincident", 23, 2, 18, 1))
sketch7.addConstraint(Sketcher.Constraint("Horizontal", 2))
sketch7.addConstraint(Sketcher.Constraint("Horizontal", 5))
sketch7.addConstraint(Sketcher.Constraint("Horizontal", 8))
sketch7.addConstraint(Sketcher.Constraint("Horizontal", 11))
sketch7.addConstraint(Sketcher.Constraint("Horizontal", 12))
sketch7.addConstraint(Sketcher.Constraint("Horizontal", 15))
sketch7.addConstraint(Sketcher.Constraint("Horizontal", 18))
sketch7.addConstraint(Sketcher.Constraint("Horizontal", 21))
sketch7.addConstraint(Sketcher.Constraint("Symmetric", 10, 2, 12, 2, -2))
sketch7.addConstraint(Sketcher.Constraint("Symmetric", 9, 2, 13, 2, -2))
sketch7.addConstraint(Sketcher.Constraint("Symmetric", 8, 2, 14, 2, -2))
sketch7.addConstraint(Sketcher.Constraint("Symmetric", 6, 2, 16, 2, -2))
sketch7.addConstraint(Sketcher.Constraint("Symmetric", 4, 2, 18, 2, -2))
sketch7.addConstraint(Sketcher.Constraint("Symmetric", 3, 2, 19, 2, -2))
sketch7.addConstraint(Sketcher.Constraint("Symmetric", 2, 2, 20, 2, -2))
sketch7.addConstraint(Sketcher.Constraint("Symmetric", 0, 2, 22, 2, -2))
sketch7.addConstraint(Sketcher.Constraint("Parallel", 0, 3))
sketch7.addConstraint(Sketcher.Constraint("Parallel", 1, 4))
sketch7.addConstraint(Sketcher.Constraint("Parallel", 3, 6))
sketch7.addConstraint(Sketcher.Constraint("Parallel", 4, 7))
sketch7.addConstraint(Sketcher.Constraint("Parallel", 6, 9))
sketch7.addConstraint(Sketcher.Constraint("Parallel", 7, 10))
sketch7.addConstraint(Sketcher.Constraint("Parallel", 9, 13))
sketch7.addConstraint(Sketcher.Constraint("Parallel", 13, 16))
sketch7.addConstraint(Sketcher.Constraint("Parallel", 14, 17))
sketch7.addConstraint(Sketcher.Constraint("Parallel", 19, 22))
sketch7.addConstraint(Sketcher.Constraint("Parallel", 20, 23))
sketch7.addConstraint(Sketcher.Constraint("Horizontal", 0, 2, 3, 2))
sketch7.addConstraint(Sketcher.Constraint("Horizontal", 6, 2, 9, 2))
sketch7.addConstraint(Sketcher.Constraint("Vertical", 2, 2, 4, 2))
sketch7.addConstraint(Sketcher.Constraint("Vertical", 0, 2, 6, 2))
sketch7.addConstraint(Sketcher.Constraint("Vertical", 5, 2, 7, 2))
sketch7.addConstraint(Sketcher.Constraint("Vertical", 4, 2, 8, 2))
sketch7.addConstraint(Sketcher.Constraint("Vertical", 8, 2, 10, 2))
sketch7.addConstraint(Sketcher.Constraint("Angle", 0, Q("60 deg")))
sketch7.addConstraint(Sketcher.Constraint("DistanceY", 0, 2, 1, 2, Q("4.93 mm")))
sketch7.addConstraint(Sketcher.Constraint("DistanceX", 2, 2, -1, 1, Q("25.1202 mm")))
sketch7.addConstraint(Sketcher.Constraint("DistanceX", 2, 2, 2, 1, Q("5.692674 mm")))
sketch7.addConstraint(Sketcher.Constraint("DistanceY", -1, 1, 0, 2, Q("38.273864 mm")))
sketch7.addConstraint(Sketcher.Constraint("DistanceY", 6, 2, -1, 1, Q("6.273864 mm")))
pocket5 = doc.addObject("PartDesign::Pocket", "Pocket004")
body.addObject(pocket5)
pocket5.Profile = sketch7
pocket5.Length = 8.5

sketch8 = doc.addObject("Sketcher::SketchObject", "Sketch007")
body.addObject(sketch8)
sketch8.AttachmentSupport = (doc.XY_Plane, [""])
sketch8.MapMode = "FlatFace"
sketch8.addGeometry(Part.LineSegment(V(32.43, -24.75, 0), V(42.281489, -24.75, 0)), False)
sketch8.addGeometry(Part.LineSegment(V(42.281489, -24.75, 0), V(42.281489, -58.548543, 0)), False)
sketch8.addGeometry(Part.LineSegment(V(42.281489, -58.548543, 0), V(-45.771408, -58.548543, 0)), False)
sketch8.addGeometry(Part.LineSegment(V(-45.771408, -58.548543, 0), V(-45.771408, -24.75, 0)), False)
sketch8.addGeometry(Part.LineSegment(V(-45.771408, -24.75, 0), V(-32.43, -24.75, 0)), False)
sketch8.addGeometry(Part.ArcOfCircle(Part.Circle(V(-28, -24.75, 0), V(0, 0, 1), 4.43), math.radians(-180), math.radians(-145.382729)), False)
sketch8.addGeometry(Part.ArcOfCircle(Part.Circle(V(-29.999805, -26.130463, 0), V(0, 0, 1), 2), math.radians(-145.382729), math.radians(-61.744717)), False)
sketch8.addGeometry(Part.LineSegment(V(-29.053004, -27.892157, 0), V(-24.314984, -25.345765, 0)), False)
sketch8.addGeometry(Part.ArcOfCircle(Part.Circle(V(-21.94798, -29.75, 0), V(0, 0, 1), 5), math.radians(90), math.radians(118.255283)), False)
sketch8.addGeometry(Part.LineSegment(V(-21.94798, -24.75, 0), V(21.94798, -24.75, 0)), False)
sketch8.addGeometry(Part.ArcOfCircle(Part.Circle(V(21.94798, -29.75, 0), V(0, 0, 1), 5), math.radians(61.744717), math.radians(90)), False)
sketch8.addGeometry(Part.LineSegment(V(24.314984, -25.345765, 0), V(29.053004, -27.892157, 0)), False)
sketch8.addGeometry(Part.ArcOfCircle(Part.Circle(V(29.999805, -26.130463, 0), V(0, 0, 1), 2), math.radians(-118.255283), math.radians(-34.617271)), False)
sketch8.addGeometry(Part.ArcOfCircle(Part.Circle(V(28, -24.75, 0), V(0, 0, 1), 4.43), math.radians(-34.617271), math.radians(0)), False)
sketch8.addConstraint(Sketcher.Constraint("Coincident", 0, 2, 1, 1))
sketch8.addConstraint(Sketcher.Constraint("Coincident", 1, 2, 2, 1))
sketch8.addConstraint(Sketcher.Constraint("Coincident", 2, 2, 3, 1))
sketch8.addConstraint(Sketcher.Constraint("Coincident", 3, 2, 4, 1))
sketch8.addConstraint(Sketcher.Constraint("Coincident", 4, 2, 5, 1))
sketch8.addConstraint(Sketcher.Constraint("Tangent", 5, 2, 6, 1))
sketch8.addConstraint(Sketcher.Constraint("Tangent", 6, 2, 7, 1))
sketch8.addConstraint(Sketcher.Constraint("Tangent", 7, 2, 8, 2))
sketch8.addConstraint(Sketcher.Constraint("Tangent", 8, 1, 9, 1))
sketch8.addConstraint(Sketcher.Constraint("Tangent", 9, 2, 10, 2))
sketch8.addConstraint(Sketcher.Constraint("Tangent", 10, 1, 11, 1))
sketch8.addConstraint(Sketcher.Constraint("Tangent", 11, 2, 12, 1))
sketch8.addConstraint(Sketcher.Constraint("Tangent", 12, 2, 13, 1))
sketch8.addConstraint(Sketcher.Constraint("Coincident", 13, 2, 0, 1))
sketch8.addConstraint(Sketcher.Constraint("Horizontal", 0))
sketch8.addConstraint(Sketcher.Constraint("Vertical", 1))
sketch8.addConstraint(Sketcher.Constraint("Horizontal", 2))
sketch8.addConstraint(Sketcher.Constraint("Vertical", 3))
sketch8.addConstraint(Sketcher.Constraint("Horizontal", 4))
sketch8.addConstraint(Sketcher.Constraint("Horizontal", 9))
sketch8.addConstraint(Sketcher.Constraint("Equal", 8, 10))
sketch8.addConstraint(Sketcher.Constraint("Equal", 6, 12))
sketch8.addConstraint(Sketcher.Constraint("Equal", 5, 13))
sketch8.addConstraint(Sketcher.Constraint("Symmetric", 6, 3, 12, 3, -2))
sketch8.addConstraint(Sketcher.Constraint("Symmetric", 4, 2, 13, 2, -2))
sketch8.addConstraint(Sketcher.Constraint("Horizontal", 13, 3, 0, 2))
sketch8.addConstraint(Sketcher.Constraint("Horizontal", 4, 2, 8, 1))
sketch8.addConstraint(Sketcher.Constraint("Horizontal", 7, 2, 10, 1))
sketch8.addConstraint(Sketcher.Constraint("Radius", 6, Q("2 mm")))
sketch8.addConstraint(Sketcher.Constraint("Radius", 8, Q("5 mm")))
sketch8.addConstraint(Sketcher.Constraint("Radius", 5, Q("4.43 mm")))
sketch8.addConstraint(Sketcher.Constraint("DistanceX", 5, 3, -1, 1, Q("28 mm")))
sketch8.addConstraint(Sketcher.Constraint("DistanceY", 5, 3, -1, 1, Q("24.75 mm")))
sketch8.addConstraint(Sketcher.Constraint("DistanceX", 0, 1, 0, 2, Q("9.851489 mm")))
sketch8.addConstraint(Sketcher.Constraint("DistanceX", 4, 1, 4, 2, Q("13.341408 mm")))
sketch8.addConstraint(Sketcher.Constraint("DistanceX", 9, 1, 9, 2, Q("43.895959 mm")))
sketch8.addConstraint(Sketcher.Constraint("DistanceX", 6, 3, 6, 2, Q("0.946802 mm")))
sketch8.addConstraint(Sketcher.Constraint("DistanceY", 1, 2, 1, 1, Q("33.798543 mm")))
pocket6 = doc.addObject("PartDesign::Pocket", "Pocket005")
body.addObject(pocket6)
pocket6.Profile = sketch8
pocket6.Length = 14
pocket6.Reversed = True

sketch9 = doc.addObject("Sketcher::SketchObject", "Sketch008")
body.addObject(sketch9)
sketch9.AttachmentSupport = (doc.XY_Plane, [""])
sketch9.MapMode = "FlatFace"
sketch9.AttachmentOffset = App.Placement(V(0, 0, 11), App.Rotation())
sketch9.addGeometry(Part.Circle(V(-13.5, 24.75, 0), V(0, 0, 1), 1.9), False)
sketch9.addGeometry(Part.Circle(V(-28, -24.75, 0), V(0, 0, 1), 1.9), False)
sketch9.addGeometry(Part.Circle(V(13.5, 24.75, 0), V(0, 0, 1), 1.9), False)
sketch9.addGeometry(Part.Circle(V(28, -24.75, 0), V(0, 0, 1), 1.9), False)
sketch9.addConstraint(Sketcher.Constraint("Equal", 0, 1))
sketch9.addConstraint(Sketcher.Constraint("Equal", 1, 2))
sketch9.addConstraint(Sketcher.Constraint("Equal", 2, 3))
sketch9.addConstraint(Sketcher.Constraint("Symmetric", 0, 3, 2, 3, -2))
sketch9.addConstraint(Sketcher.Constraint("Symmetric", 1, 3, 3, 3, -2))
sketch9.addConstraint(Sketcher.Constraint("Diameter", 0, Q("3.8 mm")))
sketch9.addConstraint(Sketcher.Constraint("DistanceX", 1, 3, -1, 1, Q("28 mm")))
sketch9.addConstraint(Sketcher.Constraint("DistanceX", 0, 3, 2, 3, Q("27 mm")))
sketch9.addConstraint(Sketcher.Constraint("DistanceY", 1, 3, 0, 3, Q("49.5 mm")))
sketch9.addConstraint(Sketcher.Constraint("DistanceY", -1, 1, 0, 3, Q("24.75 mm")))
pocket7 = doc.addObject("PartDesign::Pocket", "Pocket006")
body.addObject(pocket7)
pocket7.Profile = sketch9
pocket7.Length = 14
doc.recompute()

fillet3 = doc.addObject("PartDesign::Fillet", "Fillet002")
body.addObject(fillet3)
fillet3.Base = (pocket7, edges_at(pocket7, [
    (24.66, -25.531, 1.95),
    (29.2, -27.963, 1.95),
    (-29.2, -27.963, 1.95),
    (-24.66, -25.531, 1.95),
]))
fillet3.Radius = 0.12
doc.recompute()

fillet4 = doc.addObject("PartDesign::Fillet", "Fillet003")
body.addObject(fillet4)
fillet4.Base = (fillet3, edges_at(fillet3, [
    (40, -17.5, 5.5),
    (40, 17.5, 5.5),
    (-40, 17.5, 5.5),
    (-40, -17.5, 5.5),
    (40, -24.75, 5.5),
    (-40, -24.75, 5.5),
]))
fillet4.Radius = 1

doc.recompute()
